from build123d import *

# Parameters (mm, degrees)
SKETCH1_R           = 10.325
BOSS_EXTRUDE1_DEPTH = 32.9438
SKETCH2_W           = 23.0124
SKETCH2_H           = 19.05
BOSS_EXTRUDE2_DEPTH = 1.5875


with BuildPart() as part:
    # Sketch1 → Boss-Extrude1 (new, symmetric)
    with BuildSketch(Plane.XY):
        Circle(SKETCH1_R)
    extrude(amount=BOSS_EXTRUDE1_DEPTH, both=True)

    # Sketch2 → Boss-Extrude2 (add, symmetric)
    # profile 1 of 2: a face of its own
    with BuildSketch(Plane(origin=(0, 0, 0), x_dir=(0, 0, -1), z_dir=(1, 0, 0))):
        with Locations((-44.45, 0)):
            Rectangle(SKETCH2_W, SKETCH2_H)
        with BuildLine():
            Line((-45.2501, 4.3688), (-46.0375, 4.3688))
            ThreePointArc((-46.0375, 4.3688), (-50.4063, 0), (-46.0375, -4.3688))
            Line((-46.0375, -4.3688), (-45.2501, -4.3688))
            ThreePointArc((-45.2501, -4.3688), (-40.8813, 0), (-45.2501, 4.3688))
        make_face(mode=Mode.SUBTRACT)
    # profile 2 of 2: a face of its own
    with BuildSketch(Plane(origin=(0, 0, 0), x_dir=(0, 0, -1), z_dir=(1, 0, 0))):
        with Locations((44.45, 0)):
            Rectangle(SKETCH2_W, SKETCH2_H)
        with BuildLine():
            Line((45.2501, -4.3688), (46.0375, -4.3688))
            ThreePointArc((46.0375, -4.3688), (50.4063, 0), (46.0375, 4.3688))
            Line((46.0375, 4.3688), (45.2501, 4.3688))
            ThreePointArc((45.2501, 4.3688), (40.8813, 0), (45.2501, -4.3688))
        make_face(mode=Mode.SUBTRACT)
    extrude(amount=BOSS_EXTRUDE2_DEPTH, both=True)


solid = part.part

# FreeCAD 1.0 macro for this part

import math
import FreeCAD as App
import Part
import Sketcher

V = App.Vector
Q = App.Units.Quantity


def add_polygon(sketch, points):
    """Adds a closed chain of lines whose ends are joined by coincident constraints."""
    first, n = sketch.GeometryCount, len(points)
    for a, b in zip(points, points[1:] + points[:1]):
        sketch.addGeometry(Part.LineSegment(App.Vector(*a, 0), App.Vector(*b, 0)), False)
    for i in range(n):
        sketch.addConstraint(Sketcher.Constraint("Coincident", first + i, 2, first + (i + 1) % n, 1))

doc = App.newDocument("Part")
body = doc.addObject("PartDesign::Body", "Body")

# Sketch on XY plane
sketch1 = body.newObject("Sketcher::SketchObject", "Sketch")
sketch1.AttachmentSupport = (doc.getObject("XY_Plane"), [""])
sketch1.MapMode = "FlatFace"
sketch1.addGeometry(Part.Circle(V(0, 0, 0), V(0, 0, 1), 10.325), False)
sketch1.addConstraint(Sketcher.Constraint("Coincident", 0, 3, -1, 1))
sketch1.addConstraint(Sketcher.Constraint("Diameter", 0, 20.65))
pad1 = body.newObject("PartDesign::Pad", "Pad")
pad1.Profile = sketch1
pad1.Length = Q("2.594 in")
pad1.Midplane = True

# Sketch on YZ plane
sketch2 = body.newObject("Sketcher::SketchObject", "Sketch001")
sketch2.AttachmentSupport = (doc.getObject("YZ_Plane"), [""])
sketch2.MapMode = "FlatFace"
add_polygon(sketch2, [(9.525, 55.9562), (-9.525, 55.9562), (-9.525, 32.9438), (9.525, 32.9438)])  # lines 0-3
sketch2.addGeometry(Part.LineSegment(V(4.3688, 46.0375, 0), V(4.3688, 45.2501, 0)), False)  # 4
sketch2.addGeometry(Part.ArcOfCircle(Part.Circle(V(0, 45.2501, 0), V(0, 0, 1), 4.3688), math.radians(180), math.radians(360)), False)  # 5
sketch2.addGeometry(Part.LineSegment(V(-4.3688, 45.2501, 0), V(-4.3688, 46.0375, 0)), False)  # 6
sketch2.addGeometry(Part.ArcOfCircle(Part.Circle(V(0, 46.0375, 0), V(0, 0, 1), 4.3688), math.radians(0), math.radians(180)), False)  # 7
add_polygon(sketch2, [(9.525, -32.9438), (-9.525, -32.9438), (-9.525, -55.9562), (9.525, -55.9562)])  # lines 8-11
sketch2.addGeometry(Part.LineSegment(V(-4.3688, -46.0375, 0), V(-4.3688, -45.2501, 0)), False)  # 12
sketch2.addGeometry(Part.ArcOfCircle(Part.Circle(V(0, -45.2501, 0), V(0, 0, 1), 4.3688), math.radians(0), math.radians(180)), False)  # 13
sketch2.addGeometry(Part.LineSegment(V(4.3688, -45.2501, 0), V(4.3688, -46.0375, 0)), False)  # 14
sketch2.addGeometry(Part.ArcOfCircle(Part.Circle(V(0, -46.0375, 0), V(0, 0, 1), 4.3688), math.radians(180), math.radians(360)), False)  # 15
sketch2.addConstraint(Sketcher.Constraint("Tangent", 4, 2, 5, 2))
sketch2.addConstraint(Sketcher.Constraint("Tangent", 5, 1, 6, 1))
sketch2.addConstraint(Sketcher.Constraint("Tangent", 6, 2, 7, 2))
sketch2.addConstraint(Sketcher.Constraint("Tangent", 7, 1, 4, 1))
sketch2.addConstraint(Sketcher.Constraint("Tangent", 12, 2, 13, 2))
sketch2.addConstraint(Sketcher.Constraint("Tangent", 13, 1, 14, 1))
sketch2.addConstraint(Sketcher.Constraint("Tangent", 14, 2, 15, 2))
sketch2.addConstraint(Sketcher.Constraint("Tangent", 15, 1, 12, 1))
sketch2.addConstraint(Sketcher.Constraint("Horizontal", 0))
sketch2.addConstraint(Sketcher.Constraint("Vertical", 1))
sketch2.addConstraint(Sketcher.Constraint("Horizontal", 2))
sketch2.addConstraint(Sketcher.Constraint("Vertical", 3))
sketch2.addConstraint(Sketcher.Constraint("Vertical", 4))
sketch2.addConstraint(Sketcher.Constraint("Vertical", 6))
sketch2.addConstraint(Sketcher.Constraint("Horizontal", 8))
sketch2.addConstraint(Sketcher.Constraint("Vertical", 9))
sketch2.addConstraint(Sketcher.Constraint("Horizontal", 10))
sketch2.addConstraint(Sketcher.Constraint("Vertical", 11))
sketch2.addConstraint(Sketcher.Constraint("Vertical", 12))
sketch2.addConstraint(Sketcher.Constraint("Vertical", 14))
sketch2.addConstraint(Sketcher.Constraint("Equal", 7, 13))
sketch2.addConstraint(Sketcher.Constraint("Symmetric", 5, 3, 13, 3, -1, 1))
sketch2.addConstraint(Sketcher.Constraint("Symmetric", 2, 2, 8, 2, -1, 1))
sketch2.addConstraint(Sketcher.Constraint("Symmetric", 0, 2, 10, 2, -1, 1))
sketch2.addConstraint(Sketcher.Constraint("Symmetric", 7, 3, 15, 3, -1))
sketch2.addConstraint(Sketcher.Constraint("Vertical", 1, 2, 8, 2))
sketch2.addConstraint(Sketcher.Constraint("Radius", 5, Q("0.172 in")))
sketch2.addConstraint(Sketcher.Constraint("DistanceX", 0, 2, 0, 1, Q("0.75 in")))
sketch2.addConstraint(Sketcher.Constraint("DistanceY", 9, 2, 1, 2, Q("3.5 in")))
sketch2.addConstraint(Sketcher.Constraint("DistanceY", 1, 2, 1, 1, Q("0.906 in")))
sketch2.addConstraint(Sketcher.Constraint("DistanceY", 4, 2, 4, 1, Q("0.031 in")))
sketch2.addConstraint(Sketcher.Constraint("DistanceY", -1, 1, 7, 3, Q("1.8125 in")))
pad2 = body.newObject("PartDesign::Pad", "Pad001")
pad2.Profile = sketch2
pad2.Length = Q("0.125 in")
pad2.Midplane = True

doc.recompute()
